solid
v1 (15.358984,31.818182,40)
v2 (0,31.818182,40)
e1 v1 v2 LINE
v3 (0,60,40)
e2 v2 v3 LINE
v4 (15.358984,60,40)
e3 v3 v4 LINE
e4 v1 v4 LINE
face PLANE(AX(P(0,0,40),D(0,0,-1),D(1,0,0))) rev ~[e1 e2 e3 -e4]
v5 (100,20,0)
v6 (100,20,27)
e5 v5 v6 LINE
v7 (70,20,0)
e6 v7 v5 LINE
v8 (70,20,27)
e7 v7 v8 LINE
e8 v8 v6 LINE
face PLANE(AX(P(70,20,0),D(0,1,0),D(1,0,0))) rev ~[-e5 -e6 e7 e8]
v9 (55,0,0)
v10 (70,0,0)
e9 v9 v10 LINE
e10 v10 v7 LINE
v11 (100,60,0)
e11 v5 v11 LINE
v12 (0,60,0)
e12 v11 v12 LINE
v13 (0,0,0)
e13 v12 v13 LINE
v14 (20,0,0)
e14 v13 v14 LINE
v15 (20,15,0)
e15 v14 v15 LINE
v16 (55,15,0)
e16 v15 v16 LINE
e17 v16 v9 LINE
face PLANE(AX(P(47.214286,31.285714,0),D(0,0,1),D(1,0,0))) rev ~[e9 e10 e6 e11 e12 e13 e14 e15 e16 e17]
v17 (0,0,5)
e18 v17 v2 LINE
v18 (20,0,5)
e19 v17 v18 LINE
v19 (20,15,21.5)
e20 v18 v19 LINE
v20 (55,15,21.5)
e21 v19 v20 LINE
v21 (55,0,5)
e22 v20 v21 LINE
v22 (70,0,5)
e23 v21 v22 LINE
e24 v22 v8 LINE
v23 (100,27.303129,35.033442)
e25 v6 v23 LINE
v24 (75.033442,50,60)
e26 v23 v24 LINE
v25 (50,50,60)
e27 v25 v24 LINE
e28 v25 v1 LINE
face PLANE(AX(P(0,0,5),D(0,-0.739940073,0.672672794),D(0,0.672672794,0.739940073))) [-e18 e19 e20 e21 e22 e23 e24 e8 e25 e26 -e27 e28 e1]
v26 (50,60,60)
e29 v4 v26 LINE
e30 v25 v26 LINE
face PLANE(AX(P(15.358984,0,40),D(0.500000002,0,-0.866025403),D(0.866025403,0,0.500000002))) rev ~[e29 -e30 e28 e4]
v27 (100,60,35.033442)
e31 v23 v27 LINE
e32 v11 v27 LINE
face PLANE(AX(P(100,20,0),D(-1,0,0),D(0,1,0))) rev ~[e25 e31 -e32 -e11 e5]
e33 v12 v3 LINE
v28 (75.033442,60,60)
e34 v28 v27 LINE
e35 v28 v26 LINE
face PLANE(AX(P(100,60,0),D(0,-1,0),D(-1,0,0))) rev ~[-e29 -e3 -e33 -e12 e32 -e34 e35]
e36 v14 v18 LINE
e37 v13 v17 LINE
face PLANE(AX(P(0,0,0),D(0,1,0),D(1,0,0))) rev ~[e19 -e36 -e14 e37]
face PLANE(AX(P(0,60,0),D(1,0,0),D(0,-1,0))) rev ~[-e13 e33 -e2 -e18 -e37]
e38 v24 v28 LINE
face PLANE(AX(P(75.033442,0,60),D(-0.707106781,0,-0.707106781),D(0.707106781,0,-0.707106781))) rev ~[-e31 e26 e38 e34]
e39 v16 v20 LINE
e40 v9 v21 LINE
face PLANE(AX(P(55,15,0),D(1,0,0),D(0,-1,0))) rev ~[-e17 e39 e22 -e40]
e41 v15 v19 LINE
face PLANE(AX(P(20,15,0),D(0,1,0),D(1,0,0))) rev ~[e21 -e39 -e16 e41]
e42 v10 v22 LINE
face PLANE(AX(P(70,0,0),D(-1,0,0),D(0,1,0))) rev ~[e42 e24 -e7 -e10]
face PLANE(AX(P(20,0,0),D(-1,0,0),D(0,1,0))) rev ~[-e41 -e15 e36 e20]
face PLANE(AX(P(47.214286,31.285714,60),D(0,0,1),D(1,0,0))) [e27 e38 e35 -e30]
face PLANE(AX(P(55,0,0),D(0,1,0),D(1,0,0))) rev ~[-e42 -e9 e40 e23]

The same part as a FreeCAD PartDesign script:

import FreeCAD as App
import Part
import Sketcher

V = App.Vector
Q = App.Units.Quantity

doc = App.newDocument("Part")
body = doc.addObject("PartDesign::Body", "Body")

sketch1 = body.newObject("Sketcher::SketchObject", "Sketch")
sketch1.AttachmentSupport = (doc.getObject("XY_Plane"), [""])
sketch1.MapMode = "FlatFace"
sketch1.addGeometry([
    Part.LineSegment(V(0, 60, 0), V(0, 0, 0)),
    Part.LineSegment(V(0, 0, 0), V(20, 0, 0)),
    Part.LineSegment(V(20, 0, 0), V(20, 15, 0)),
    Part.LineSegment(V(20, 15, 0), V(55, 15, 0)),
    Part.LineSegment(V(55, 15, 0), V(55, 0, 0)),
    Part.LineSegment(V(55, 0, 0), V(70, 0, 0)),
    Part.LineSegment(V(70, 0, 0), V(70, 20, 0)),
    Part.LineSegment(V(70, 20, 0), V(100, 20, 0)),
    Part.LineSegment(V(100, 20, 0), V(100, 60, 0)),
    Part.LineSegment(V(100, 60, 0), V(0, 60, 0)),
], False)
sketch1.addConstraint([
    Sketcher.Constraint("Coincident", 0, 2, 1, 1),
    Sketcher.Constraint("Coincident", 1, 2, 2, 1),
    Sketcher.Constraint("Coincident", 2, 2, 3, 1),
    Sketcher.Constraint("Coincident", 3, 2, 4, 1),
    Sketcher.Constraint("Coincident", 4, 2, 5, 1),
    Sketcher.Constraint("Coincident", 5, 2, 6, 1),
    Sketcher.Constraint("Coincident", 6, 2, 7, 1),
    Sketcher.Constraint("Coincident", 7, 2, 8, 1),
    Sketcher.Constraint("Coincident", 8, 2, 9, 1),
    Sketcher.Constraint("Coincident", 9, 2, 0, 1),
    Sketcher.Constraint("Vertical", 0),
    Sketcher.Constraint("Horizontal", 1),
    Sketcher.Constraint("Vertical", 2),
    Sketcher.Constraint("Horizontal", 3),
    Sketcher.Constraint("Vertical", 4),
    Sketcher.Constraint("Horizontal", 5),
    Sketcher.Constraint("Vertical", 6),
    Sketcher.Constraint("Horizontal", 7),
    Sketcher.Constraint("Vertical", 8),
    Sketcher.Constraint("Horizontal", 9),
    Sketcher.Constraint("Coincident", 0, 2, -1, 1),
    Sketcher.Constraint("PointOnObject", 4, 2, -1),
    Sketcher.Constraint("Equal", 5, 2),
    Sketcher.Constraint("Equal", 1, 6),
    Sketcher.Constraint("DistanceX", 1, 1, 1, 2, 20.0),
    Sketcher.Constraint("DistanceX", 3, 1, 3, 2, 35.0),
    Sketcher.Constraint("DistanceX", 5, 1, 5, 2, 15.0),
    Sketcher.Constraint("DistanceX", 7, 1, 7, 2, 30.0),
    Sketcher.Constraint("DistanceY", 0, 2, 0, 1, 60.0),
])
pad1 = body.newObject("PartDesign::Pad", "Pad")
pad1.Profile = sketch1
pad1.Length = 60

sketch2 = body.newObject("Sketcher::SketchObject", "Sketch001")
sketch2.AttachmentSupport = (doc.getObject("XZ_Plane"), [""])
sketch2.MapMode = "FlatFace"
sketch2.addGeometry([
    Part.LineSegment(V(100, 60, 0), V(75, 60, 0)),
    Part.LineSegment(V(75, 60, 0), V(100, 35, 0)),
    Part.LineSegment(V(100, 35, 0), V(100, 60, 0)),
    Part.LineSegment(V(15, 40, 0), V(50, 60, 0)),
    Part.LineSegment(V(50, 60, 0), V(0, 60, 0)),
    Part.LineSegment(V(0, 60, 0), V(0, 40, 0)),
    Part.LineSegment(V(0, 40, 0), V(15, 40, 0)),
], False)
sketch2.addConstraint([
    Sketcher.Constraint("Coincident", 0, 2, 1, 1),
    Sketcher.Constraint("Coincident", 1, 2, 2, 1),
    Sketcher.Constraint("Coincident", 2, 2, 0, 1),
    Sketcher.Constraint("Coincident", 3, 2, 4, 1),
    Sketcher.Constraint("Coincident", 4, 2, 5, 1),
    Sketcher.Constraint("Coincident", 5, 2, 6, 1),
    Sketcher.Constraint("Coincident", 6, 2, 3, 1),
    Sketcher.Constraint("Horizontal", 0),
    Sketcher.Constraint("Vertical", 2),
    Sketcher.Constraint("Horizontal", 4),
    Sketcher.Constraint("Vertical", 5),
    Sketcher.Constraint("Horizontal", 6),
    Sketcher.Constraint("PointOnObject", 4, 2, -2),
    Sketcher.Constraint("Horizontal", 2, 2, 3, 2),
    Sketcher.Constraint("Equal", 0, 2),
    Sketcher.Constraint("DistanceX", 4, 2, 4, 1, 50.0),
    Sketcher.Constraint("DistanceY", 5, 2, 5, 1, 20.0),
    Sketcher.Constraint("Angle", 3, Q("30 deg")),
    Sketcher.Constraint("DistanceY", -1, 1, 0, 2, 60.0),
    Sketcher.Constraint("DistanceX", -1, 1, 1, 2, 100.0),
    Sketcher.Constraint("DistanceX", 0, 2, 0, 1, 24.966558),
])
pocket1 = body.newObject("PartDesign::Pocket", "Pocket")
pocket1.Profile = sketch2
pocket1.Type = "ThroughAll"

sketch3 = body.newObject("Sketcher::SketchObject", "Sketch002")
sketch3.AttachmentSupport = (doc.getObject("YZ_Plane"), [""])
sketch3.MapMode = "FlatFace"
sketch3.addGeometry([
    Part.LineSegment(V(50, 60, 0), V(0, 60, 0)),
    Part.LineSegment(V(0, 60, 0), V(0, 5, 0)),
    Part.LineSegment(V(0, 5, 0), V(50, 60, 0)),
], False)
sketch3.addConstraint([
    Sketcher.Constraint("Coincident", 0, 2, 1, 1),
    Sketcher.Constraint("Coincident", 1, 2, 2, 1),
    Sketcher.Constraint("Coincident", 2, 2, 0, 1),
    Sketcher.Constraint("Horizontal", 0),
    Sketcher.Constraint("Vertical", 1),
    Sketcher.Constraint("PointOnObject", 0, 2, -2),
    Sketcher.Constraint("DistanceX", 0, 2, 0, 1, 50.0),
    Sketcher.Constraint("DistanceY", 1, 2, 1, 1, 55.0),
    Sketcher.Constraint("DistanceY", -1, 1, 0, 2, 60.0),
])
pocket2 = body.newObject("PartDesign::Pocket", "Pocket001")
pocket2.Profile = sketch3
pocket2.Type = "ThroughAll"
pocket2.Reversed = True

doc.recompute()
